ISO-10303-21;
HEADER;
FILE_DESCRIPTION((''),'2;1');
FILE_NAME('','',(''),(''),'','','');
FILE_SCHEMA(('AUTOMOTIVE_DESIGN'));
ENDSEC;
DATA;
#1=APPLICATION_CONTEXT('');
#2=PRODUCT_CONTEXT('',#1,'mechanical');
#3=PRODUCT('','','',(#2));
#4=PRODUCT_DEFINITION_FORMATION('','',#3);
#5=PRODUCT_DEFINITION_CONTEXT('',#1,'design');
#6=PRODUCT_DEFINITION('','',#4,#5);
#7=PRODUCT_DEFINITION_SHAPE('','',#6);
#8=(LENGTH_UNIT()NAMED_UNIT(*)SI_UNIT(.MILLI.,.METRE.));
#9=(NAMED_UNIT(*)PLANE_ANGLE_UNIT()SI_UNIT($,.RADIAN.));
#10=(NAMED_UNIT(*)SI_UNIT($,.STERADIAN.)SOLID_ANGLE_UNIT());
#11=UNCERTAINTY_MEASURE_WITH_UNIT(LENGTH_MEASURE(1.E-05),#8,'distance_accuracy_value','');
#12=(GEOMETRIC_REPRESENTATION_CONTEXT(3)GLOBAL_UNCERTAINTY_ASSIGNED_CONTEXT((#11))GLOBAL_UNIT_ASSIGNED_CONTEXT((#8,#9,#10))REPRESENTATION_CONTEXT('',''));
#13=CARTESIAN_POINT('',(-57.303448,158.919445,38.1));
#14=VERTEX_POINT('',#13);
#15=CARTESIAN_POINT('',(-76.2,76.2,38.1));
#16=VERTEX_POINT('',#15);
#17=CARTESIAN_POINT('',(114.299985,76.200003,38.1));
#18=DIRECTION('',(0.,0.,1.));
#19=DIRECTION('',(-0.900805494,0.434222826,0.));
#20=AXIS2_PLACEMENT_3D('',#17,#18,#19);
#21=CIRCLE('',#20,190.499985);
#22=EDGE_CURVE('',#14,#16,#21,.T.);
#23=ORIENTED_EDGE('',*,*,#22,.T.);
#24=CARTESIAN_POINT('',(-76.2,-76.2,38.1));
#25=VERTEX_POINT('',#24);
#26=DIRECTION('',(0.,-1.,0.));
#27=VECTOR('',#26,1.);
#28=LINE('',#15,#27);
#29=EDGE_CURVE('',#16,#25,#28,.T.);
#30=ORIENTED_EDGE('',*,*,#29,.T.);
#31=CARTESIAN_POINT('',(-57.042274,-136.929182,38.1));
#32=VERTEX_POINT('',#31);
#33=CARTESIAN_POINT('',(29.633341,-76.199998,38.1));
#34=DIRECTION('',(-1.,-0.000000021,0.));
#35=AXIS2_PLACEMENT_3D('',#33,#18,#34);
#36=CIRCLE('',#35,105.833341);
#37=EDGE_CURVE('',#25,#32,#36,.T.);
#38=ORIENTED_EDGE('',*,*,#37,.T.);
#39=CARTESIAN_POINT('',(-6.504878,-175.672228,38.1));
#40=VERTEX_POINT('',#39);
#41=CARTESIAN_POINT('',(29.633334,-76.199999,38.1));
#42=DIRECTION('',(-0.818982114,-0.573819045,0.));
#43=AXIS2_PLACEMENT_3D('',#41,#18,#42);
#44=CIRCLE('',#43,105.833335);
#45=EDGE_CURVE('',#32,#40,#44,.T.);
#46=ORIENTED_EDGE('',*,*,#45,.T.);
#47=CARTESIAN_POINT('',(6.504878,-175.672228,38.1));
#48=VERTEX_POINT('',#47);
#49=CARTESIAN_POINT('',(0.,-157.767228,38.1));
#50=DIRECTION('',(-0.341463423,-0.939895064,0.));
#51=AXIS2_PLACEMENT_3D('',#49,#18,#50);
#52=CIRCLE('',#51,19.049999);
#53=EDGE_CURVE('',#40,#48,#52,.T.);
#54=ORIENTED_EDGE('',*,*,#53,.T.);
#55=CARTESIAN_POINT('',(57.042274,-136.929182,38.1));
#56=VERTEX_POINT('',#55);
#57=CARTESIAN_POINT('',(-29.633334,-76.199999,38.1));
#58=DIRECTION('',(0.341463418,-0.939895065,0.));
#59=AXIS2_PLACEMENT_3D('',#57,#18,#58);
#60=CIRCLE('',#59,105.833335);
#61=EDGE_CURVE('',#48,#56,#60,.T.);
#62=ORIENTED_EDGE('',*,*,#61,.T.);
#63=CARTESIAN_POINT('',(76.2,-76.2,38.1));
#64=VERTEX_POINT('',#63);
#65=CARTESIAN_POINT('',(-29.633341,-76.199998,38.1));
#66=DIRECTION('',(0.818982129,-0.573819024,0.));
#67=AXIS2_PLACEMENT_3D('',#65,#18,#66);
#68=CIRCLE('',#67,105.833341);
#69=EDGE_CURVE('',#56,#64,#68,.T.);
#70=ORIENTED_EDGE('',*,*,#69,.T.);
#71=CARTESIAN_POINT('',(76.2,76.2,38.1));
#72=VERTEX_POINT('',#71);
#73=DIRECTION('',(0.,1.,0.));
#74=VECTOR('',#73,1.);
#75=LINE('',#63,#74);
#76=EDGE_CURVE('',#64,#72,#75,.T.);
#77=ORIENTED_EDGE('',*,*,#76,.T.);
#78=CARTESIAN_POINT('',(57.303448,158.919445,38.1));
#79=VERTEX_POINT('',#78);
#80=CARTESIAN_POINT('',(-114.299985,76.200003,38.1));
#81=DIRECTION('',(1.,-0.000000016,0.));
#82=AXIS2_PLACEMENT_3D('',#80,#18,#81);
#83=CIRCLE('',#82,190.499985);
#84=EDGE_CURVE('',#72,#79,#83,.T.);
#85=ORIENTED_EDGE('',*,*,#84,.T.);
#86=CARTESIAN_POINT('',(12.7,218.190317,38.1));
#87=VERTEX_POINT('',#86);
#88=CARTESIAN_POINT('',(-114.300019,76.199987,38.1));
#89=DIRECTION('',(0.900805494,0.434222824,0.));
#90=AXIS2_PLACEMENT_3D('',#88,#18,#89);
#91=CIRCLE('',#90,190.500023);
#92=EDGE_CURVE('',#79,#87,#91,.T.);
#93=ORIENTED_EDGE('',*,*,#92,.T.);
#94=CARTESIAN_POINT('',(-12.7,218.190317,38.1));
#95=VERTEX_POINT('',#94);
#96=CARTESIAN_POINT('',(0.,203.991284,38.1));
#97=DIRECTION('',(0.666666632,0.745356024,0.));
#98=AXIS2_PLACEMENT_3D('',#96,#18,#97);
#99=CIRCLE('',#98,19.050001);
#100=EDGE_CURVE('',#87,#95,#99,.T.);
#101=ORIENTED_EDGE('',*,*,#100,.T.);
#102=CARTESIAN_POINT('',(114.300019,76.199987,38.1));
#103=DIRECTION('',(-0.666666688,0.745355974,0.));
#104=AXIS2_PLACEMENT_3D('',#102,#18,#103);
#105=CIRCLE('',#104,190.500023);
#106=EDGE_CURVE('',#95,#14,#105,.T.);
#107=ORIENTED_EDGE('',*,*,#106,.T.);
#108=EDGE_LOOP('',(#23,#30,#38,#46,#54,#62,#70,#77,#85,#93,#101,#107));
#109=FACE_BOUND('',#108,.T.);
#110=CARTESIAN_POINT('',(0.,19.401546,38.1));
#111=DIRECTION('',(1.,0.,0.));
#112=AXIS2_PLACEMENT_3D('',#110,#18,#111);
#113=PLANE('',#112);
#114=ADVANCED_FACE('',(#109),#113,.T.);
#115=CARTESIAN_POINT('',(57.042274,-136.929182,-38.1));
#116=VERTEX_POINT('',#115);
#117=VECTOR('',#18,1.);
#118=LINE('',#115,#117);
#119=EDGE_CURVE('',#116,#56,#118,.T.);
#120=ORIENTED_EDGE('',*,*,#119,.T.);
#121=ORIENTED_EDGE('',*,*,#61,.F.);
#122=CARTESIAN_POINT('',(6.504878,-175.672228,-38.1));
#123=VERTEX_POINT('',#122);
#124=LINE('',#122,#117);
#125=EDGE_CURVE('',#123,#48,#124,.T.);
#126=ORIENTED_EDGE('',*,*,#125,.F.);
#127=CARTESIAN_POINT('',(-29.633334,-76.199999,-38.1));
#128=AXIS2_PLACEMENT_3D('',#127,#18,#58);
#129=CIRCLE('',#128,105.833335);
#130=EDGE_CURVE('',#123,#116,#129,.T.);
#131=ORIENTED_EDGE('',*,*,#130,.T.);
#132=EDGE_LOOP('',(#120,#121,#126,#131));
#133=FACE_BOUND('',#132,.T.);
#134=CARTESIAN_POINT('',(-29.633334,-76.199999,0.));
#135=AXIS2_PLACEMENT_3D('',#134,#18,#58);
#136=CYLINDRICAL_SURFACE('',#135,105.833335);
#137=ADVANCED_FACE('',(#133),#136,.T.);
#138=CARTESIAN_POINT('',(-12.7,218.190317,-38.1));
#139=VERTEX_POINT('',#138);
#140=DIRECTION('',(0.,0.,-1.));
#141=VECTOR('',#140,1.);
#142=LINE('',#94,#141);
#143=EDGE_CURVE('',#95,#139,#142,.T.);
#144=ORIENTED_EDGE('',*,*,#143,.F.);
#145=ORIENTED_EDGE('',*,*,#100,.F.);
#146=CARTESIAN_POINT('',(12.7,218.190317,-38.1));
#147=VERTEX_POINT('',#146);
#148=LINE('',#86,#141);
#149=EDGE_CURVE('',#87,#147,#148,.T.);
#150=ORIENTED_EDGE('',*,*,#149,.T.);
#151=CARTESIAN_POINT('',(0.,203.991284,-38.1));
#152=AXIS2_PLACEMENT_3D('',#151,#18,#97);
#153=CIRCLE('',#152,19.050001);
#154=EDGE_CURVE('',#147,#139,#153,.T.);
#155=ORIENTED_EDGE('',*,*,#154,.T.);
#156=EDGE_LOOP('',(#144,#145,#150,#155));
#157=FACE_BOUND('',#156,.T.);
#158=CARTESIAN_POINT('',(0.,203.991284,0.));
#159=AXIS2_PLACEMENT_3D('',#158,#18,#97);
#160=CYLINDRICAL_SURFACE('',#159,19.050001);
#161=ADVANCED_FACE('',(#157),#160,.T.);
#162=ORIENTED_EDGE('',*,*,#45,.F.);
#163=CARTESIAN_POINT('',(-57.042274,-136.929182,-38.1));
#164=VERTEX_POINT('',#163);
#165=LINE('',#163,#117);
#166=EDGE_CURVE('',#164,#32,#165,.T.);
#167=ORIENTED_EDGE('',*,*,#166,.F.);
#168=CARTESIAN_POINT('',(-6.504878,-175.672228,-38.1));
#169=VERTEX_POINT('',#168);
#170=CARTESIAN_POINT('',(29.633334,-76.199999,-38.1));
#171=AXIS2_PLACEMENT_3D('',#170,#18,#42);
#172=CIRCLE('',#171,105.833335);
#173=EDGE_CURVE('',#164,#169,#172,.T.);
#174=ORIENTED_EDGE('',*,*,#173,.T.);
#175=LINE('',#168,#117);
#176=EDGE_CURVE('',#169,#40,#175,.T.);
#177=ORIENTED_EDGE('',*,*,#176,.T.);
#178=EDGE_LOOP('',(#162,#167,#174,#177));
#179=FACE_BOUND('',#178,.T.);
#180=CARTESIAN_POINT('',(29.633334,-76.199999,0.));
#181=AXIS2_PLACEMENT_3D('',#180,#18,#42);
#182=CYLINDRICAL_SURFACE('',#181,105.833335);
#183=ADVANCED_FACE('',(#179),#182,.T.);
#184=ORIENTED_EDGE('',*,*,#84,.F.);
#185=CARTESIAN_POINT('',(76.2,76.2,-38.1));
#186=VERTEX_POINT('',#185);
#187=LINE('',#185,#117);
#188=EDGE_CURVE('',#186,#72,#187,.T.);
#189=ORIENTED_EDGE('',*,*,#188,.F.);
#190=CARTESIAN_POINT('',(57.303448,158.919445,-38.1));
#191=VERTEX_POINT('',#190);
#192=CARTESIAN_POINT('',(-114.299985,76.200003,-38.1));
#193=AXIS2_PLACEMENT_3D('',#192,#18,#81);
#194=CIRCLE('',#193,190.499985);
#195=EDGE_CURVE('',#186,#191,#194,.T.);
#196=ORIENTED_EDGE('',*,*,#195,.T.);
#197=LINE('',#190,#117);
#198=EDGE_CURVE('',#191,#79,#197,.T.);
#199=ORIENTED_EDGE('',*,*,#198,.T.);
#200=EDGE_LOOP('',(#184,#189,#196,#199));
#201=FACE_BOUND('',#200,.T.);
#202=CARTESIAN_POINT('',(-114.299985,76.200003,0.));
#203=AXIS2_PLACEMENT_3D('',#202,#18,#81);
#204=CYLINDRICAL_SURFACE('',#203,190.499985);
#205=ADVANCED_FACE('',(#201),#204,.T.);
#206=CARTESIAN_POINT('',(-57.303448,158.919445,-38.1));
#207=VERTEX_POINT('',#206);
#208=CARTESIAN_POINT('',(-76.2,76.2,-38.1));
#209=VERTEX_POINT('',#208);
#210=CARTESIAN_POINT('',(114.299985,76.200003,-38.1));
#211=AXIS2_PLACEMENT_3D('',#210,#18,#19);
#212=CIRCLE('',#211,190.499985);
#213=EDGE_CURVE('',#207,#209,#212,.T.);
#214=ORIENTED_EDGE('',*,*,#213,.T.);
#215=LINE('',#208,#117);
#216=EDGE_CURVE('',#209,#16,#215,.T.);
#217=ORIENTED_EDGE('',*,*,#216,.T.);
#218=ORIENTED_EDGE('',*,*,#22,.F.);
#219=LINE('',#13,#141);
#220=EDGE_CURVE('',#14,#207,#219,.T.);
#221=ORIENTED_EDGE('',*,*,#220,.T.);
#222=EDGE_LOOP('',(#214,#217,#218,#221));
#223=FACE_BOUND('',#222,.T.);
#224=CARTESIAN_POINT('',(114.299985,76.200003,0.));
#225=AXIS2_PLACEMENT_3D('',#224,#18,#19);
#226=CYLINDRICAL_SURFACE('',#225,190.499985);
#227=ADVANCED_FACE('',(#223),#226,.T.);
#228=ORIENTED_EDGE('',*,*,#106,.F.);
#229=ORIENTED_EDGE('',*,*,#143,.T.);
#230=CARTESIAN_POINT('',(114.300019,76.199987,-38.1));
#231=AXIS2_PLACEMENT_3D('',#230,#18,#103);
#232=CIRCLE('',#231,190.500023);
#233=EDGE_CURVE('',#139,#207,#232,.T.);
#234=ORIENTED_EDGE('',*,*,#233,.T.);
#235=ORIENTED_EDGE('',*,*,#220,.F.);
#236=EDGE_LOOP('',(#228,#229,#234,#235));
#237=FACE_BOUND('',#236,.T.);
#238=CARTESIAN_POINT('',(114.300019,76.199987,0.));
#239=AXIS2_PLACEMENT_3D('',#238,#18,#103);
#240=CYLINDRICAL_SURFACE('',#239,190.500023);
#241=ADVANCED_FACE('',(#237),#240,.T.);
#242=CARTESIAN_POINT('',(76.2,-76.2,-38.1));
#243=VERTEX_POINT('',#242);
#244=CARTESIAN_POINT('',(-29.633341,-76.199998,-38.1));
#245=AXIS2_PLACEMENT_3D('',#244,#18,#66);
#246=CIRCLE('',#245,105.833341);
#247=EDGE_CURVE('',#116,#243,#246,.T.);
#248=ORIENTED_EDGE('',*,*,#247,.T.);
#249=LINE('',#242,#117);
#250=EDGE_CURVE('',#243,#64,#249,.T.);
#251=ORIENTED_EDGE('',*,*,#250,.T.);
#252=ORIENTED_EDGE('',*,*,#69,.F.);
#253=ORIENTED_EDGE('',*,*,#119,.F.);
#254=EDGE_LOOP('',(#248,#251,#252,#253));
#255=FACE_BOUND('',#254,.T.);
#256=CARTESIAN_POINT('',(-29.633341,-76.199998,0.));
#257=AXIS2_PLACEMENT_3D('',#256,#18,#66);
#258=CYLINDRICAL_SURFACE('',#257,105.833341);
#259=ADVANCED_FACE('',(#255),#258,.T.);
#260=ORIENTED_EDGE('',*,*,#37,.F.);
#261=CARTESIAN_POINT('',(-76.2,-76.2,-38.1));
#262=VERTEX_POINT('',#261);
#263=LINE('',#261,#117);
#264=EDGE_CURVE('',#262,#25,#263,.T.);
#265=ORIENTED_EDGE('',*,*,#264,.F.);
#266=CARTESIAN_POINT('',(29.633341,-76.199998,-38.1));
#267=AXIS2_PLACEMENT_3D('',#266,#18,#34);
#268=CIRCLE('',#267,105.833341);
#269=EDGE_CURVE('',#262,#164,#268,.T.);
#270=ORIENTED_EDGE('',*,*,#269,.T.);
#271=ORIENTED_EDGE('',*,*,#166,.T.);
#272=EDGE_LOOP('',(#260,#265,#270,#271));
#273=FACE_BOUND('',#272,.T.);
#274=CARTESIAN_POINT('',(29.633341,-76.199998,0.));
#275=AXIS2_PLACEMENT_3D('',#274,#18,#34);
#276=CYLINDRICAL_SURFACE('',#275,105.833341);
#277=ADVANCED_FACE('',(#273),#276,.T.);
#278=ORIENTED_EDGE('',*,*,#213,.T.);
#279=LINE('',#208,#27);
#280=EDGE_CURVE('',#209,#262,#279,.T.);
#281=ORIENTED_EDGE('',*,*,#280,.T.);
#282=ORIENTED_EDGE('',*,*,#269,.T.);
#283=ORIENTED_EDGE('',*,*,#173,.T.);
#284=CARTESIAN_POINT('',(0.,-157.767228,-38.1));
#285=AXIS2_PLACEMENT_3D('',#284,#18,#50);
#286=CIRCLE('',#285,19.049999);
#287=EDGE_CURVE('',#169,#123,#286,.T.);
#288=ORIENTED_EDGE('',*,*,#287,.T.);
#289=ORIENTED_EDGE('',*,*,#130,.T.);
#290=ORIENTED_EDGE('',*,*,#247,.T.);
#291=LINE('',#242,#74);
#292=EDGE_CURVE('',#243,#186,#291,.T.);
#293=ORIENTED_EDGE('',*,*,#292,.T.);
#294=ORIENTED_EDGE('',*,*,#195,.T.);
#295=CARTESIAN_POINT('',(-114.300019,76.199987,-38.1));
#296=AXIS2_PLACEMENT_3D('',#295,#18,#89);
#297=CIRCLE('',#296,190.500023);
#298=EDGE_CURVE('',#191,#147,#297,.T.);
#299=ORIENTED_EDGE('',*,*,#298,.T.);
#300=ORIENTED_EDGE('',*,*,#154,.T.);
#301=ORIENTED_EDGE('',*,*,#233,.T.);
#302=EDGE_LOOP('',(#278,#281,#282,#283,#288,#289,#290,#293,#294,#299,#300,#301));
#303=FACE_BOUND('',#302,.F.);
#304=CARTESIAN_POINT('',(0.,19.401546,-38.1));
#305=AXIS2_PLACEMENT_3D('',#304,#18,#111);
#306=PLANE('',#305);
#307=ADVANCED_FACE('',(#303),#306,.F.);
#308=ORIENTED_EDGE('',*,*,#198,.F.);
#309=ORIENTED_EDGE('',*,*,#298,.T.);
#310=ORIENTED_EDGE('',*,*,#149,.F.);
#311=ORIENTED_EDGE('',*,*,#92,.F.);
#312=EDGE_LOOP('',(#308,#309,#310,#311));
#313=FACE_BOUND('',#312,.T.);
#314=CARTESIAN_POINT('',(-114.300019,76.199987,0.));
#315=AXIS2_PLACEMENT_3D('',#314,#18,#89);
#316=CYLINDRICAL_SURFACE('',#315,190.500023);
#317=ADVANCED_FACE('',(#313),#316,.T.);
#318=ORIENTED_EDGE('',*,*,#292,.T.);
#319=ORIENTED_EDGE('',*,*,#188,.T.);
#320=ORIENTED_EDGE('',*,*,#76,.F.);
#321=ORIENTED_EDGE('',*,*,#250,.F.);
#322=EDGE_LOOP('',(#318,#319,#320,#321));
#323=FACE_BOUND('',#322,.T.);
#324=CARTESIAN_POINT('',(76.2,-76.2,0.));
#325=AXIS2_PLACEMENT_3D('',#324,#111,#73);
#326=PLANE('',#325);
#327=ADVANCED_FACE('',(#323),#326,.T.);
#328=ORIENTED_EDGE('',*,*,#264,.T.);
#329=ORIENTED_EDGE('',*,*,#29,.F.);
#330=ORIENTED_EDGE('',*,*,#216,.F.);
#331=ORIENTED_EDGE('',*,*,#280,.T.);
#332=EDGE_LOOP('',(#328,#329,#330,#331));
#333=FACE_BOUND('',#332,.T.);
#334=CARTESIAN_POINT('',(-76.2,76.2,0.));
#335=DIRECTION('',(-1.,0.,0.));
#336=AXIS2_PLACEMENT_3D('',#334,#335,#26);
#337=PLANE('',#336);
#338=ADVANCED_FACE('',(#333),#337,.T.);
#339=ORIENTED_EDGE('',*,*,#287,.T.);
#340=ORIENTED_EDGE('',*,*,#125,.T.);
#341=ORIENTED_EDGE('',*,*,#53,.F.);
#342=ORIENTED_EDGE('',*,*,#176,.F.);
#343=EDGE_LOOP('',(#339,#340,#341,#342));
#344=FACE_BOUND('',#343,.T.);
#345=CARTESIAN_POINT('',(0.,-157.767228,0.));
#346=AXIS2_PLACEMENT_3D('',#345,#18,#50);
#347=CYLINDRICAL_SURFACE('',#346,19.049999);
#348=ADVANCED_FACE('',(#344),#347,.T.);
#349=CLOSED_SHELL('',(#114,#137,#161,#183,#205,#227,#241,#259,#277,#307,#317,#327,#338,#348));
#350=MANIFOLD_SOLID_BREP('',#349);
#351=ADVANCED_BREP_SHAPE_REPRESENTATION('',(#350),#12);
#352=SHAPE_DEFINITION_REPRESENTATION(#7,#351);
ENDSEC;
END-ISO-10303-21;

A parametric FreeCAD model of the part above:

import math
import FreeCAD as App
import Part
import Sketcher

V = App.Vector
Q = App.Units.Quantity

doc = App.newDocument("Part")
body = doc.addObject("PartDesign::Body", "Body")

sketch1 = doc.addObject("Sketcher::SketchObject", "Sketch")
body.addObject(sketch1)
sketch1.AttachmentSupport = (doc.XY_Plane, [""])
sketch1.MapMode = "FlatFace"
sketch1.addGeometry(Part.ArcOfCircle(Part.Circle(V(114, 76, 0), V(0, 0, 1), 190), math.radians(154), math.radians(180)), False)
sketch1.addGeometry(Part.LineSegment(V(-76, 76, 0), V(-76, -76, 0)), False)
sketch1.addGeometry(Part.ArcOfCircle(Part.Circle(V(30, -76, 0), V(0, 0, 1), 106), math.radians(-180), math.radians(-145)), False)
sketch1.addGeometry(Part.ArcOfCircle(Part.Circle(V(30, -76, 0), V(0, 0, 1), 106), math.radians(-145), math.radians(-110)), False)
sketch1.addGeometry(Part.ArcOfCircle(Part.Circle(V(0, -158, 0), V(0, 0, 1), 19), math.radians(-110), math.radians(-70)), False)
sketch1.addGeometry(Part.ArcOfCircle(Part.Circle(V(-30, -76, 0), V(0, 0, 1), 106), math.radians(-70), math.radians(-35)), False)
sketch1.addGeometry(Part.ArcOfCircle(Part.Circle(V(-30, -76, 0), V(0, 0, 1), 106), math.radians(-35), math.radians(0)), False)
sketch1.addGeometry(Part.LineSegment(V(76, -76, 0), V(76, 76, 0)), False)
sketch1.addGeometry(Part.ArcOfCircle(Part.Circle(V(-114, 76, 0), V(0, 0, 1), 190), math.radians(0), math.radians(26)), False)
sketch1.addGeometry(Part.ArcOfCircle(Part.Circle(V(-114, 76, 0), V(0, 0, 1), 191), math.radians(26), math.radians(48)), False)
sketch1.addGeometry(Part.ArcOfCircle(Part.Circle(V(0, 204, 0), V(0, 0, 1), 19), math.radians(48), math.radians(132)), False)
sketch1.addGeometry(Part.ArcOfCircle(Part.Circle(V(114, 76, 0), V(0, 0, 1), 191), math.radians(132), math.radians(154)), False)
sketch1.addConstraint(Sketcher.Constraint("Tangent", 0, 2, 1, 1))
sketch1.addConstraint(Sketcher.Constraint("Tangent", 1, 2, 2, 1))
sketch1.addConstraint(Sketcher.Constraint("Tangent", 2, 2, 3, 1))
sketch1.addConstraint(Sketcher.Constraint("Tangent", 3, 2, 4, 1))
sketch1.addConstraint(Sketcher.Constraint("Tangent", 4, 2, 5, 1))
sketch1.addConstraint(Sketcher.Constraint("Tangent", 5, 2, 6, 1))
sketch1.addConstraint(Sketcher.Constraint("Tangent", 6, 2, 7, 1))
sketch1.addConstraint(Sketcher.Constraint("Tangent", 7, 2, 8, 1))
sketch1.addConstraint(Sketcher.Constraint("Tangent", 8, 2, 9, 1))
sketch1.addConstraint(Sketcher.Constraint("Tangent", 9, 2, 10, 1))
sketch1.addConstraint(Sketcher.Constraint("Tangent", 10, 2, 11, 1))
sketch1.addConstraint(Sketcher.Constraint("Tangent", 11, 2, 0, 1))
sketch1.addConstraint(Sketcher.Constraint("Vertical", 1))
sketch1.addConstraint(Sketcher.Constraint("Vertical", 7))
sketch1.addConstraint(Sketcher.Constraint("Equal", 3, 5))
sketch1.addConstraint(Sketcher.Constraint("Equal", 2, 6))
sketch1.addConstraint(Sketcher.Constraint("Equal", 0, 8))
sketch1.addConstraint(Sketcher.Constraint("Equal", 4, 10))
sketch1.addConstraint(Sketcher.Constraint("Equal", 9, 11))
sketch1.addConstraint(Sketcher.Constraint("Symmetric", 0, 2, 6, 2, -1, 1))
sketch1.addConstraint(Sketcher.Constraint("Symmetric", 2, 3, 5, 3, -2))
sketch1.addConstraint(Sketcher.Constraint("Symmetric", 8, 2, 11, 2, -2))
sketch1.addConstraint(Sketcher.Constraint("Horizontal", 2, 2, 5, 2))
sketch1.addConstraint(Sketcher.Constraint("DistanceY", 1, 2, 1, 1, Q("6 in")))
sketch1.addConstraint(Sketcher.Constraint("Radius", 4, Q("0.75 in")))
sketch1.addConstraint(Sketcher.Constraint("DistanceX", 0, 2, -1, 1, Q("3 in")))
sketch1.addConstraint(Sketcher.Constraint("Radius", 2, 105.833341))
sketch1.addConstraint(Sketcher.Constraint("Radius", 0, 190.499985))
sketch1.addConstraint(Sketcher.Constraint("Radius", 9, 190.500023))
sketch1.addConstraint(Sketcher.Constraint("DistanceX", -1, 1, 8, 2, 57.303448))
sketch1.addConstraint(Sketcher.Constraint("DistanceX", 2, 2, 5, 3, 27.40894))
pad1 = doc.addObject("PartDesign::Pad", "Pad")
body.addObject(pad1)
pad1.Profile = sketch1
pad1.Length = Q("3 in")
pad1.Midplane = True

doc.recompute()
